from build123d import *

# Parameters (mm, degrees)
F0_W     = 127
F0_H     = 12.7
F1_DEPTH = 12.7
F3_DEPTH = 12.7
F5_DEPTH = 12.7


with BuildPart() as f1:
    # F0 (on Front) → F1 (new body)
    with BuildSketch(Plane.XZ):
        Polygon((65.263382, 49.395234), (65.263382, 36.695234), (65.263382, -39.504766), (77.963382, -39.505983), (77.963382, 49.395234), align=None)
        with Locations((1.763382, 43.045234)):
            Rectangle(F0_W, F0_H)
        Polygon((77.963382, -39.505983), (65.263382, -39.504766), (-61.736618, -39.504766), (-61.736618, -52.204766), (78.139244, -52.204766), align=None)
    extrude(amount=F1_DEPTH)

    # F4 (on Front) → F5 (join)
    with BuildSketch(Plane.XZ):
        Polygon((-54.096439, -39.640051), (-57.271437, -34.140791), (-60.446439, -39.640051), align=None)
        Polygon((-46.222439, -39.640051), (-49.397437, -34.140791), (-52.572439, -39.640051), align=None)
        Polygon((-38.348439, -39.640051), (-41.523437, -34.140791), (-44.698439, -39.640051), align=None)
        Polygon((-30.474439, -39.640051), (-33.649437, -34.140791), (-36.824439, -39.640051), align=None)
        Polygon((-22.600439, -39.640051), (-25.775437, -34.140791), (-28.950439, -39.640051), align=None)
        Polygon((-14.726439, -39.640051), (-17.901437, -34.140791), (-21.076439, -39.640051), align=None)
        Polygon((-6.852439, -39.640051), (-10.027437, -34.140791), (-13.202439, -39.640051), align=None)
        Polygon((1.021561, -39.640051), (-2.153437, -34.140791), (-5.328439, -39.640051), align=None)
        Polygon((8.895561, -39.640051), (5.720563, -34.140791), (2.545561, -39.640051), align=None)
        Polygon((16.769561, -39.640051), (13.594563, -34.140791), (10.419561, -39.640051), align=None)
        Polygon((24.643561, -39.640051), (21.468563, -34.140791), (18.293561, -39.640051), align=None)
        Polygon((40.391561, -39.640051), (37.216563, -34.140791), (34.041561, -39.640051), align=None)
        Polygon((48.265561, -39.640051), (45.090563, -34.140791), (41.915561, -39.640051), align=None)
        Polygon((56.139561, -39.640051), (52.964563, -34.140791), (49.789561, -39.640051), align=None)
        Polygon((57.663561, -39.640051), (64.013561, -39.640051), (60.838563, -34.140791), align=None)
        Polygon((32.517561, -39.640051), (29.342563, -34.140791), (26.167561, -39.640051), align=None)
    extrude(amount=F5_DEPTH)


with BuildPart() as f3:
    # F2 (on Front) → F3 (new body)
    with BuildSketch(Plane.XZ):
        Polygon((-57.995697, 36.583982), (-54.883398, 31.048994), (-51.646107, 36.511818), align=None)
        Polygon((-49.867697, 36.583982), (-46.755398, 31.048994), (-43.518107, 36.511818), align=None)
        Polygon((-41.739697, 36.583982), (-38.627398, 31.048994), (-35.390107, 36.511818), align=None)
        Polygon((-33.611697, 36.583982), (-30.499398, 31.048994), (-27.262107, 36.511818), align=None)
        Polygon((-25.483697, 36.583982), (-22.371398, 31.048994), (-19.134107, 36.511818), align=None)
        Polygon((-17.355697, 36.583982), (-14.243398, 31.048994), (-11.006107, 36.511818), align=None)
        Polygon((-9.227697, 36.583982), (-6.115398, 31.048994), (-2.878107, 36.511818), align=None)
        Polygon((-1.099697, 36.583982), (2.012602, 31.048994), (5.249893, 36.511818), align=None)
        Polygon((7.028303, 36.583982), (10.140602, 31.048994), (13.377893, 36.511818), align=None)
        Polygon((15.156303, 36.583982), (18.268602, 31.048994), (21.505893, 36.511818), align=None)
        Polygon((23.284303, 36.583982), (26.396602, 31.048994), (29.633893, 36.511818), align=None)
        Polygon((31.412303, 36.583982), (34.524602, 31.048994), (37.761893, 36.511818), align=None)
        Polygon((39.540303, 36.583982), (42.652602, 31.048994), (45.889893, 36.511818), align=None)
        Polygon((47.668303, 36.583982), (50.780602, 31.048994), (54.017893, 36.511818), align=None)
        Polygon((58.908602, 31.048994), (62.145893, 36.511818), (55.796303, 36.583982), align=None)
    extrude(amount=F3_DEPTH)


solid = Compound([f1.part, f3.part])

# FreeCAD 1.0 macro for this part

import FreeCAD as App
import Part
import Sketcher

V = App.Vector
Q = App.Units.Quantity


def add_polygon(sketch, points):
    """Adds a closed chain of lines whose ends are joined by coincident constraints."""
    first, n = sketch.GeometryCount, len(points)
    for a, b in zip(points, points[1:] + points[:1]):
        sketch.addGeometry(Part.LineSegment(App.Vector(*a, 0), App.Vector(*b, 0)), False)
    for i in range(n):
        sketch.addConstraint(Sketcher.Constraint("Coincident", first + i, 2, first + (i + 1) % n, 1))

doc = App.newDocument("Part")
body = doc.addObject("PartDesign::Body", "Body")

sketch1 = body.newObject("Sketcher::SketchObject", "Sketch")
sketch1.AttachmentSupport = (doc.getObject("XZ_Plane"), [""])
sketch1.MapMode = "FlatFace"
add_polygon(sketch1, [(65.263382, 36.695234), (65.263382, -39.504766), (-61.736618, -39.504766), (-61.736618, -52.204766), (78.139244, -52.204766), (77.963382, -39.505983), (77.963382, 49.395234), (-61.736618, 49.395234), (-61.736618, 36.695234)])
sketch1.addConstraint([
    Sketcher.Constraint("Vertical", 0),
    Sketcher.Constraint("Horizontal", 1),
    Sketcher.Constraint("Vertical", 2),
    Sketcher.Constraint("Horizontal", 3),
    Sketcher.Constraint("Vertical", 5),
    Sketcher.Constraint("Horizontal", 6),
    Sketcher.Constraint("Vertical", 7),
    Sketcher.Constraint("Horizontal", 8),
    Sketcher.Constraint("Vertical", 2, 2, 6, 2),
    Sketcher.Constraint("Equal", 2, 7),
    Sketcher.Constraint("DistanceX", 1, 2, 1, 1, Q("5 in")),
    Sketcher.Constraint("DistanceY", 0, 2, 0, 1, Q("3 in")),
    Sketcher.Constraint("DistanceX", 6, 2, 6, 1, Q("5.5 in")),
    Sketcher.Constraint("DistanceY", 2, 2, 2, 1, Q("0.5 in")),
    Sketcher.Constraint("Distance", 4, Q("0.5 in")),
    Sketcher.Constraint("DistanceX", 3, 1, 3, 2, Q("139.875862 mm")),
    Sketcher.Constraint("DistanceX", -1, 1, 0, 2, Q("65.263382 mm")),
    Sketcher.Constraint("DistanceY", 0, 2, -1, 1, Q("39.504766 mm")),
])
pad1 = body.newObject("PartDesign::Pad", "Pad")
pad1.Profile = sketch1
pad1.Length = Q("0.5 in")

sketch2 = body.newObject("Sketcher::SketchObject", "Sketch001")
sketch2.AttachmentSupport = (doc.getObject("XZ_Plane"), [""])
sketch2.MapMode = "FlatFace"
add_polygon(sketch2, [(-54.096439, -39.640051), (-57.271437, -34.140791), (-60.446439, -39.640051)])
add_polygon(sketch2, [(-46.222439, -39.640051), (-49.397437, -34.140791), (-52.572439, -39.640051)])
add_polygon(sketch2, [(-38.348439, -39.640051), (-41.523437, -34.140791), (-44.698439, -39.640051)])
add_polygon(sketch2, [(-30.474439, -39.640051), (-33.649437, -34.140791), (-36.824439, -39.640051)])
add_polygon(sketch2, [(-22.600439, -39.640051), (-25.775437, -34.140791), (-28.950439, -39.640051)])
add_polygon(sketch2, [(-14.726439, -39.640051), (-17.901437, -34.140791), (-21.076439, -39.640051)])
add_polygon(sketch2, [(-6.852439, -39.640051), (-10.027437, -34.140791), (-13.202439, -39.640051)])
add_polygon(sketch2, [(1.021561, -39.640051), (-2.153437, -34.140791), (-5.328439, -39.640051)])
add_polygon(sketch2, [(8.895561, -39.640051), (5.720563, -34.140791), (2.545561, -39.640051)])
add_polygon(sketch2, [(16.769561, -39.640051), (13.594563, -34.140791), (10.419561, -39.640051)])
add_polygon(sketch2, [(24.643561, -39.640051), (21.468563, -34.140791), (18.293561, -39.640051)])
add_polygon(sketch2, [(40.391561, -39.640051), (37.216563, -34.140791), (34.041561, -39.640051)])
add_polygon(sketch2, [(48.265561, -39.640051), (45.090563, -34.140791), (41.915561, -39.640051)])
add_polygon(sketch2, [(56.139561, -39.640051), (52.964563, -34.140791), (49.789561, -39.640051)])
add_polygon(sketch2, [(57.663561, -39.640051), (64.013561, -39.640051), (60.838563, -34.140791)])
add_polygon(sketch2, [(32.517561, -39.640051), (29.342563, -34.140791), (26.167561, -39.640051)])
sketch2.addConstraint([
    Sketcher.Constraint("Horizontal", 2),
    Sketcher.Constraint("Horizontal", 5),
    Sketcher.Constraint("Horizontal", 8),
    Sketcher.Constraint("Horizontal", 11),
    Sketcher.Constraint("Horizontal", 14),
    Sketcher.Constraint("Horizontal", 17),
    Sketcher.Constraint("Horizontal", 20),
    Sketcher.Constraint("Horizontal", 23),
    Sketcher.Constraint("Horizontal", 26),
    Sketcher.Constraint("Horizontal", 29),
    Sketcher.Constraint("Horizontal", 32),
    Sketcher.Constraint("Horizontal", 35),
    Sketcher.Constraint("Horizontal", 38),
    Sketcher.Constraint("Horizontal", 41),
    Sketcher.Constraint("Horizontal", 42),
    Sketcher.Constraint("Horizontal", 47),
    Sketcher.Constraint("Parallel", 0, 3),
    Sketcher.Constraint("Parallel", 1, 4),
    Sketcher.Constraint("Parallel", 3, 6),
    Sketcher.Constraint("Parallel", 4, 7),
    Sketcher.Constraint("Parallel", 6, 9),
    Sketcher.Constraint("Parallel", 7, 10),
    Sketcher.Constraint("Parallel", 9, 12),
    Sketcher.Constraint("Parallel", 10, 13),
    Sketcher.Constraint("Parallel", 12, 15),
    Sketcher.Constraint("Parallel", 13, 16),
    Sketcher.Constraint("Parallel", 15, 18),
    Sketcher.Constraint("Parallel", 16, 19),
    Sketcher.Constraint("Parallel", 18, 21),
    Sketcher.Constraint("Parallel", 19, 22),
    Sketcher.Constraint("Parallel", 21, 24),
    Sketcher.Constraint("Parallel", 22, 25),
    Sketcher.Constraint("Parallel", 24, 27),
    Sketcher.Constraint("Parallel", 25, 28),
    Sketcher.Constraint("Parallel", 27, 30),
    Sketcher.Constraint("Parallel", 28, 31),
    Sketcher.Constraint("Parallel", 30, 33),
    Sketcher.Constraint("Parallel", 31, 34),
    Sketcher.Constraint("Parallel", 33, 36),
    Sketcher.Constraint("Parallel", 34, 37),
    Sketcher.Constraint("Parallel", 36, 39),
    Sketcher.Constraint("Parallel", 37, 40),
    Sketcher.Constraint("Parallel", 39, 43),
    Sketcher.Constraint("Parallel", 40, 44),
    Sketcher.Constraint("Parallel", 43, 45),
    Sketcher.Constraint("Parallel", 44, 46),
    Sketcher.Constraint("Horizontal", 0, 2, 3, 2),
    Sketcher.Constraint("Horizontal", 2, 2, 4, 2),
    Sketcher.Constraint("Horizontal", 3, 2, 6, 2),
    Sketcher.Constraint("Horizontal", 5, 2, 7, 2),
    Sketcher.Constraint("Horizontal", 6, 2, 9, 2),
    Sketcher.Constraint("Horizontal", 8, 2, 10, 2),
    Sketcher.Constraint("Horizontal", 9, 2, 12, 2),
    Sketcher.Constraint("Horizontal", 11, 2, 13, 2),
    Sketcher.Constraint("Horizontal", 12, 2, 15, 2),
    Sketcher.Constraint("Horizontal", 14, 2, 16, 2),
    Sketcher.Constraint("Horizontal", 15, 2, 18, 2),
    Sketcher.Constraint("Horizontal", 17, 2, 19, 2),
    Sketcher.Constraint("Horizontal", 18, 2, 21, 2),
    Sketcher.Constraint("Horizontal", 20, 2, 22, 2),
    Sketcher.Constraint("Horizontal", 21, 2, 24, 2),
    Sketcher.Constraint("Horizontal", 23, 2, 25, 2),
    Sketcher.Constraint("Horizontal", 24, 2, 27, 2),
    Sketcher.Constraint("Horizontal", 26, 2, 28, 2),
    Sketcher.Constraint("Horizontal", 27, 2, 30, 2),
    Sketcher.Constraint("Horizontal", 29, 2, 31, 2),
    Sketcher.Constraint("Horizontal", 30, 2, 33, 2),
    Sketcher.Constraint("Horizontal", 32, 2, 34, 2),
    Sketcher.Constraint("Horizontal", 33, 2, 36, 2),
    Sketcher.Constraint("Horizontal", 35, 2, 37, 2),
    Sketcher.Constraint("Horizontal", 36, 2, 39, 2),
    Sketcher.Constraint("Horizontal", 38, 2, 40, 2),
    Sketcher.Constraint("Horizontal", 41, 2, 42, 2),
    Sketcher.Constraint("Horizontal", 39, 2, 43, 2),
    Sketcher.Constraint("Horizontal", 43, 2, 45, 2),
    Sketcher.Constraint("Horizontal", 44, 2, 46, 2),
    Sketcher.Constraint("Angle", 0, Q("119.99999 deg")),
    Sketcher.Constraint("DistanceX", 2, 1, 2, 2, Q("0.25 in")),
    Sketcher.Constraint("Distance", 0, Q("0.2499999 in")),
    Sketcher.Constraint("DistanceX", 0, 2, 3, 2, Q("0.31 in")),
    Sketcher.Constraint("DistanceX", 3, 2, 6, 2, Q("0.31 in")),
    Sketcher.Constraint("DistanceX", 6, 2, 9, 2, Q("0.31 in")),
    Sketcher.Constraint("DistanceX", 9, 2, 12, 2, Q("0.31 in")),
    Sketcher.Constraint("DistanceX", 12, 2, 15, 2, Q("0.31 in")),
    Sketcher.Constraint("DistanceX", 15, 2, 18, 2, Q("0.31 in")),
    Sketcher.Constraint("DistanceX", 18, 2, 21, 2, Q("0.31 in")),
    Sketcher.Constraint("DistanceX", 21, 2, 24, 2, Q("0.31 in")),
    Sketcher.Constraint("DistanceX", 24, 2, 27, 2, Q("0.31 in")),
    Sketcher.Constraint("DistanceX", 27, 2, 30, 2, Q("0.31 in")),
    Sketcher.Constraint("DistanceX", 30, 2, 33, 2, Q("0.62 in")),
    Sketcher.Constraint("DistanceX", 33, 2, 36, 2, Q("0.31 in")),
    Sketcher.Constraint("DistanceX", 36, 2, 39, 2, Q("0.31 in")),
    Sketcher.Constraint("DistanceX", 41, 2, 42, 2, Q("0.31 in")),
    Sketcher.Constraint("DistanceX", 30, 2, 45, 2, Q("0.31 in")),
    Sketcher.Constraint("DistanceY", 0, 2, -1, 1, Q("34.140791 mm")),
    Sketcher.Constraint("DistanceX", 1, 2, -1, 1, Q("60.446439 mm")),
])
pad2 = body.newObject("PartDesign::Pad", "Pad001")
pad2.Profile = sketch2
pad2.Length = Q("0.5 in")
body2 = doc.addObject("PartDesign::Body", "Body001")
body2.AllowCompound = True

sketch3 = body2.newObject("Sketcher::SketchObject", "Sketch002")
sketch3.AttachmentSupport = (doc.getObject("XZ_Plane001"), [""])
sketch3.MapMode = "FlatFace"
add_polygon(sketch3, [(-57.995697, 36.583982), (-54.883398, 31.048994), (-51.646107, 36.511818)])
add_polygon(sketch3, [(-49.867697, 36.583982), (-46.755398, 31.048994), (-43.518107, 36.511818)])
add_polygon(sketch3, [(-41.739697, 36.583982), (-38.627398, 31.048994), (-35.390107, 36.511818)])
add_polygon(sketch3, [(-33.611697, 36.583982), (-30.499398, 31.048994), (-27.262107, 36.511818)])
add_polygon(sketch3, [(-25.483697, 36.583982), (-22.371398, 31.048994), (-19.134107, 36.511818)])
add_polygon(sketch3, [(-17.355697, 36.583982), (-14.243398, 31.048994), (-11.006107, 36.511818)])
add_polygon(sketch3, [(-9.227697, 36.583982), (-6.115398, 31.048994), (-2.878107, 36.511818)])
add_polygon(sketch3, [(-1.099697, 36.583982), (2.012602, 31.048994), (5.249893, 36.511818)])
add_polygon(sketch3, [(7.028303, 36.583982), (10.140602, 31.048994), (13.377893, 36.511818)])
add_polygon(sketch3, [(15.156303, 36.583982), (18.268602, 31.048994), (21.505893, 36.511818)])
add_polygon(sketch3, [(23.284303, 36.583982), (26.396602, 31.048994), (29.633893, 36.511818)])
add_polygon(sketch3, [(31.412303, 36.583982), (34.524602, 31.048994), (37.761893, 36.511818)])
add_polygon(sketch3, [(39.540303, 36.583982), (42.652602, 31.048994), (45.889893, 36.511818)])
add_polygon(sketch3, [(47.668303, 36.583982), (50.780602, 31.048994), (54.017893, 36.511818)])
add_polygon(sketch3, [(58.908602, 31.048994), (62.145893, 36.511818), (55.796303, 36.583982)])
sketch3.addConstraint([
    Sketcher.Constraint("Parallel", 0, 3),
    Sketcher.Constraint("Parallel", 1, 4),
    Sketcher.Constraint("Parallel", 2, 5),
    Sketcher.Constraint("Parallel", 3, 6),
    Sketcher.Constraint("Parallel", 4, 7),
    Sketcher.Constraint("Parallel", 5, 8),
    Sketcher.Constraint("Parallel", 6, 9),
    Sketcher.Constraint("Parallel", 7, 10),
    Sketcher.Constraint("Parallel", 8, 11),
    Sketcher.Constraint("Parallel", 9, 12),
    Sketcher.Constraint("Parallel", 10, 13),
    Sketcher.Constraint("Parallel", 11, 14),
    Sketcher.Constraint("Parallel", 12, 15),
    Sketcher.Constraint("Parallel", 13, 16),
    Sketcher.Constraint("Parallel", 14, 17),
    Sketcher.Constraint("Parallel", 15, 18),
    Sketcher.Constraint("Parallel", 16, 19),
    Sketcher.Constraint("Parallel", 17, 20),
    Sketcher.Constraint("Parallel", 18, 21),
    Sketcher.Constraint("Parallel", 19, 22),
    Sketcher.Constraint("Parallel", 20, 23),
    Sketcher.Constraint("Parallel", 21, 24),
    Sketcher.Constraint("Parallel", 22, 25),
    Sketcher.Constraint("Parallel", 23, 26),
    Sketcher.Constraint("Parallel", 24, 27),
    Sketcher.Constraint("Parallel", 25, 28),
    Sketcher.Constraint("Parallel", 26, 29),
    Sketcher.Constraint("Parallel", 27, 30),
    Sketcher.Constraint("Parallel", 28, 31),
    Sketcher.Constraint("Parallel", 29, 32),
    Sketcher.Constraint("Parallel", 30, 33),
    Sketcher.Constraint("Parallel", 31, 34),
    Sketcher.Constraint("Parallel", 32, 35),
    Sketcher.Constraint("Parallel", 33, 36),
    Sketcher.Constraint("Parallel", 34, 37),
    Sketcher.Constraint("Parallel", 35, 38),
    Sketcher.Constraint("Parallel", 36, 39),
    Sketcher.Constraint("Parallel", 37, 40),
    Sketcher.Constraint("Parallel", 38, 41),
    Sketcher.Constraint("Parallel", 40, 42),
    Sketcher.Constraint("Parallel", 41, 43),
    Sketcher.Constraint("Parallel", 39, 44),
    Sketcher.Constraint("Horizontal", 0, 2, 3, 2),
    Sketcher.Constraint("Horizontal", 1, 2, 4, 2),
    Sketcher.Constraint("Horizontal", 3, 2, 6, 2),
    Sketcher.Constraint("Horizontal", 4, 2, 7, 2),
    Sketcher.Constraint("Horizontal", 6, 2, 9, 2),
    Sketcher.Constraint("Horizontal", 7, 2, 10, 2),
    Sketcher.Constraint("Horizontal", 9, 2, 12, 2),
    Sketcher.Constraint("Horizontal", 10, 2, 13, 2),
    Sketcher.Constraint("Horizontal", 12, 2, 15, 2),
    Sketcher.Constraint("Horizontal", 13, 2, 16, 2),
    Sketcher.Constraint("Horizontal", 15, 2, 18, 2),
    Sketcher.Constraint("Horizontal", 16, 2, 19, 2),
    Sketcher.Constraint("Horizontal", 18, 2, 21, 2),
    Sketcher.Constraint("Horizontal", 19, 2, 22, 2),
    Sketcher.Constraint("Horizontal", 21, 2, 24, 2),
    Sketcher.Constraint("Horizontal", 22, 2, 25, 2),
    Sketcher.Constraint("Horizontal", 24, 2, 27, 2),
    Sketcher.Constraint("Horizontal", 25, 2, 28, 2),
    Sketcher.Constraint("Horizontal", 27, 2, 30, 2),
    Sketcher.Constraint("Horizontal", 28, 2, 31, 2),
    Sketcher.Constraint("Horizontal", 30, 2, 33, 2),
    Sketcher.Constraint("Horizontal", 31, 2, 34, 2),
    Sketcher.Constraint("Horizontal", 33, 2, 36, 2),
    Sketcher.Constraint("Horizontal", 34, 2, 37, 2),
    Sketcher.Constraint("Horizontal", 36, 2, 39, 2),
    Sketcher.Constraint("Horizontal", 37, 2, 40, 2),
    Sketcher.Constraint("Horizontal", 40, 2, 42, 2),
    Sketcher.Constraint("Horizontal", 41, 2, 43, 2),
    Sketcher.Constraint("Equal", 0, 1),
    Sketcher.Constraint("Equal", 1, 2),
    Sketcher.Constraint("Distance", 0, Q("0.25 in")),
    Sketcher.Constraint("DistanceX", 0, 2, 3, 2, Q("0.32 in")),
    Sketcher.Constraint("DistanceX", 3, 2, 6, 2, Q("0.32 in")),
    Sketcher.Constraint("DistanceX", 6, 2, 9, 2, Q("0.32 in")),
    Sketcher.Constraint("DistanceX", 9, 2, 12, 2, Q("0.32 in")),
    Sketcher.Constraint("DistanceX", 12, 2, 15, 2, Q("0.32 in")),
    Sketcher.Constraint("DistanceX", 15, 2, 18, 2, Q("0.32 in")),
    Sketcher.Constraint("DistanceX", 18, 2, 21, 2, Q("0.32 in")),
    Sketcher.Constraint("DistanceX", 21, 2, 24, 2, Q("0.32 in")),
    Sketcher.Constraint("DistanceX", 24, 2, 27, 2, Q("0.32 in")),
    Sketcher.Constraint("DistanceX", 27, 2, 30, 2, Q("0.32 in")),
    Sketcher.Constraint("DistanceX", 30, 2, 33, 2, Q("0.32 in")),
    Sketcher.Constraint("DistanceX", 33, 2, 36, 2, Q("0.32 in")),
    Sketcher.Constraint("DistanceX", 36, 2, 39, 2, Q("0.32 in")),
    Sketcher.Constraint("DistanceX", 40, 2, 42, 2, Q("0.32 in")),
    Sketcher.Constraint("DistanceX", -1, 1, 21, 2, Q("2.012602 mm")),
    Sketcher.Constraint("DistanceX", 2, 2, 0, 2, Q("3.112299 mm")),
    Sketcher.Constraint("DistanceY", -1, 1, 0, 2, Q("31.048994 mm")),
])
pad3 = body2.newObject("PartDesign::Pad", "Pad002")
pad3.Profile = sketch3
pad3.Length = Q("0.5 in")

doc.recompute()
